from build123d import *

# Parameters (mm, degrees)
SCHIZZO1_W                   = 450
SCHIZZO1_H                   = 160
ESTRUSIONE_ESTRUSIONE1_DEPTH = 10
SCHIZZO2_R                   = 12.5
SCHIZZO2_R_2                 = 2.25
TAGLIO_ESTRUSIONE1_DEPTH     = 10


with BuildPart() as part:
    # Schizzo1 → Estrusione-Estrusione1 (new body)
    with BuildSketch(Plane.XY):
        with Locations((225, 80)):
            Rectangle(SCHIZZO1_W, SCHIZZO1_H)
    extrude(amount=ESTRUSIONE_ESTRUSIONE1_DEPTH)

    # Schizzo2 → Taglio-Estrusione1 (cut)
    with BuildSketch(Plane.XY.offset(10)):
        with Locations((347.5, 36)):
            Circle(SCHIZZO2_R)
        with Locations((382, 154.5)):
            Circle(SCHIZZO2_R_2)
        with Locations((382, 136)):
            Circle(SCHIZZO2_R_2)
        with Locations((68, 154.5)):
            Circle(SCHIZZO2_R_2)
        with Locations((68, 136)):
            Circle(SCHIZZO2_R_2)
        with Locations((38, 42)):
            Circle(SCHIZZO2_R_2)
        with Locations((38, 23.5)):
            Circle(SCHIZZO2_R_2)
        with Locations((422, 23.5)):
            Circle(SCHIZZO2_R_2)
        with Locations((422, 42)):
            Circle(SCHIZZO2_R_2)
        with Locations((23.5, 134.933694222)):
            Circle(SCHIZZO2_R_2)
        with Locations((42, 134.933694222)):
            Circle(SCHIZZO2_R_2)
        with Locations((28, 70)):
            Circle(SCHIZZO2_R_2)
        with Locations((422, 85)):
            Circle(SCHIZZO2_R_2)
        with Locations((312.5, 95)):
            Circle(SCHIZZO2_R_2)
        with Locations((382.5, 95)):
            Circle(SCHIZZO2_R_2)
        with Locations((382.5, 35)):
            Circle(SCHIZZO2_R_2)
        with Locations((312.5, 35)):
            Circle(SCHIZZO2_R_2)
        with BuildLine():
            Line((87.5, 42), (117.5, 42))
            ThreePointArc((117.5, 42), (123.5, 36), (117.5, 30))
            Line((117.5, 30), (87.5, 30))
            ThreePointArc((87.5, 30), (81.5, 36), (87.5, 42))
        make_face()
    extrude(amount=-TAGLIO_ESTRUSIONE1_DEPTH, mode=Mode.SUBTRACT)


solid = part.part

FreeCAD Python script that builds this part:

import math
import FreeCAD as App
import Part
import Sketcher
from FreeCAD import Vector
Q = App.Units.Quantity

doc = App.newDocument("Part")
body = doc.addObject("PartDesign::Body", "Body")

sketch1 = doc.addObject("Sketcher::SketchObject", "Sketch")
body.addObject(sketch1)
sketch1.AttachmentSupport = (doc.XY_Plane, [""])
sketch1.MapMode = "FlatFace"
sketch1.addGeometry([
    Part.LineSegment(Vector(0, 160, 0), Vector(0, 0, 0)),
    Part.LineSegment(Vector(0, 0, 0), Vector(450, 0, 0)),
    Part.LineSegment(Vector(450, 0, 0), Vector(450, 160, 0)),
    Part.LineSegment(Vector(450, 160, 0), Vector(0, 160, 0)),
], False)
sketch1.addConstraint([
    Sketcher.Constraint("Coincident", 0, 2, 1, 1),
    Sketcher.Constraint("Coincident", 1, 2, 2, 1),
    Sketcher.Constraint("Coincident", 2, 2, 3, 1),
    Sketcher.Constraint("Coincident", 3, 2, 0, 1),
    Sketcher.Constraint("Vertical", 0),
    Sketcher.Constraint("Horizontal", 1),
    Sketcher.Constraint("Vertical", 2),
    Sketcher.Constraint("Horizontal", 3),
    Sketcher.Constraint("Coincident", 0, 2, -1, 1),
    Sketcher.Constraint("DistanceX", 1, 1, 1, 2, Q("450 mm")),
    Sketcher.Constraint("DistanceY", 0, 2, 0, 1, Q("160 mm")),
])
pad1 = doc.addObject("PartDesign::Pad", "Pad")
body.addObject(pad1)
pad1.Profile = sketch1
pad1.Length = 10

sketch2 = doc.addObject("Sketcher::SketchObject", "Sketch001")
body.addObject(sketch2)
sketch2.AttachmentSupport = (doc.XY_Plane, [""])
sketch2.MapMode = "FlatFace"
sketch2.AttachmentOffset = App.Placement(Vector(0, 0, 10), App.Rotation())
sketch2.addGeometry([
    Part.Circle(Vector(347.5, 36, 0), Vector(0, 0, 1), 12.5),
    Part.Circle(Vector(382, 154.5, 0), Vector(0, 0, 1), 2.25),
    Part.Circle(Vector(382, 136, 0), Vector(0, 0, 1), 2.25),
    Part.Circle(Vector(68, 154.5, 0), Vector(0, 0, 1), 2.25),
    Part.Circle(Vector(68, 136, 0), Vector(0, 0, 1), 2.25),
    Part.Circle(Vector(38, 42, 0), Vector(0, 0, 1), 2.25),
    Part.Circle(Vector(38, 23.5, 0), Vector(0, 0, 1), 2.25),
    Part.Circle(Vector(422, 23.5, 0), Vector(0, 0, 1), 2.25),
    Part.Circle(Vector(422, 42, 0), Vector(0, 0, 1), 2.25),
    Part.Circle(Vector(23.5, 134.933694, 0), Vector(0, 0, 1), 2.25),
    Part.Circle(Vector(42, 134.933694, 0), Vector(0, 0, 1), 2.25),
    Part.Circle(Vector(28, 70, 0), Vector(0, 0, 1), 2.25),
    Part.Circle(Vector(422, 85, 0), Vector(0, 0, 1), 2.25),
    Part.Circle(Vector(312.5, 95, 0), Vector(0, 0, 1), 2.25),
    Part.Circle(Vector(382.5, 95, 0), Vector(0, 0, 1), 2.25),
    Part.Circle(Vector(382.5, 35, 0), Vector(0, 0, 1), 2.25),
    Part.Circle(Vector(312.5, 35, 0), Vector(0, 0, 1), 2.25),
    Part.LineSegment(Vector(117.5, 42, 0), Vector(87.5, 42, 0)),
    Part.ArcOfCircle(Part.Circle(Vector(87.5, 36, 0), Vector(0, 0, 1), 6), math.radians(90), math.radians(270)),
    Part.LineSegment(Vector(87.5, 30, 0), Vector(117.5, 30, 0)),
    Part.ArcOfCircle(Part.Circle(Vector(117.5, 36, 0), Vector(0, 0, 1), 6), math.radians(-90), math.radians(90)),
], False)
sketch2.addConstraint([
    Sketcher.Constraint("Tangent", 17, 2, 18, 1),
    Sketcher.Constraint("Tangent", 18, 2, 19, 1),
    Sketcher.Constraint("Tangent", 19, 2, 20, 1),
    Sketcher.Constraint("Tangent", 20, 2, 17, 1),
    Sketcher.Constraint("Horizontal", 17),
    Sketcher.Constraint("Horizontal", 19),
    Sketcher.Constraint("Equal", 1, 2),
    Sketcher.Constraint("Equal", 2, 3),
    Sketcher.Constraint("Equal", 3, 4),
    Sketcher.Constraint("Equal", 4, 5),
    Sketcher.Constraint("Equal", 5, 6),
    Sketcher.Constraint("Equal", 6, 7),
    Sketcher.Constraint("Equal", 7, 8),
    Sketcher.Constraint("Equal", 8, 9),
    Sketcher.Constraint("Equal", 9, 10),
    Sketcher.Constraint("Equal", 10, 11),
    Sketcher.Constraint("Equal", 11, 12),
    Sketcher.Constraint("Equal", 12, 13),
    Sketcher.Constraint("Equal", 13, 14),
    Sketcher.Constraint("Equal", 14, 15),
    Sketcher.Constraint("Equal", 15, 16),
    Sketcher.Constraint("Horizontal", 1, 3, 3, 3),
    Sketcher.Constraint("Horizontal", 2, 3, 4, 3),
    Sketcher.Constraint("Horizontal", 6, 3, 7, 3),
    Sketcher.Constraint("Horizontal", 5, 3, 8, 3),
    Sketcher.Constraint("Horizontal", 9, 3, 10, 3),
    Sketcher.Constraint("Horizontal", 13, 3, 14, 3),
    Sketcher.Constraint("Horizontal", 15, 3, 16, 3),
    Sketcher.Constraint("Horizontal", 0, 3, 18, 3),
    Sketcher.Constraint("Horizontal", 8, 3, 17, 2),
    Sketcher.Constraint("Vertical", 1, 3, 2, 3),
    Sketcher.Constraint("Vertical", 3, 3, 4, 3),
    Sketcher.Constraint("Vertical", 5, 3, 6, 3),
    Sketcher.Constraint("Vertical", 7, 3, 8, 3),
    Sketcher.Constraint("Vertical", 8, 3, 12, 3),
    Sketcher.Constraint("Vertical", 14, 3, 15, 3),
    Sketcher.Constraint("Vertical", 13, 3, 16, 3),
    Sketcher.Constraint("Diameter", 0, Q("25 mm")),
    Sketcher.Constraint("Radius", 18, Q("6 mm")),
    Sketcher.Constraint("Diameter", 1, Q("4.5 mm")),
    Sketcher.Constraint("DistanceX", 17, 2, 17, 1, Q("30 mm")),
    Sketcher.Constraint("DistanceY", -1, 1, 0, 3, Q("36 mm")),
    Sketcher.Constraint("DistanceX", -1, 1, 1, 3, Q("382 mm")),
    Sketcher.Constraint("DistanceY", -1, 1, 2, 3, Q("136 mm")),
    Sketcher.Constraint("DistanceX", -1, 1, 3, 3, Q("68 mm")),
    Sketcher.Constraint("DistanceX", -1, 1, 5, 3, Q("38 mm")),
    Sketcher.Constraint("DistanceX", -1, 1, 7, 3, Q("422 mm")),
    Sketcher.Constraint("DistanceX", -1, 1, 10, 3, Q("42 mm")),
    Sketcher.Constraint("DistanceX", -1, 1, 11, 3, Q("28 mm")),
    Sketcher.Constraint("DistanceY", -1, 1, 11, 3, Q("70 mm")),
    Sketcher.Constraint("DistanceY", -1, 1, 12, 3, Q("85 mm")),
    Sketcher.Constraint("DistanceY", -1, 1, 13, 3, Q("95 mm")),
    Sketcher.Constraint("DistanceY", -1, 1, 15, 3, Q("35 mm")),
    Sketcher.Constraint("DistanceY", 6, 3, 3, 3, Q("131 mm")),
    Sketcher.Constraint("DistanceX", 9, 3, 0, 3, Q("324 mm")),
    Sketcher.Constraint("DistanceX", 13, 3, 0, 3, Q("35 mm")),
    Sketcher.Constraint("DistanceX", 0, 3, 14, 3, Q("35 mm")),
    Sketcher.Constraint("DistanceX", -1, 1, 0, 3, Q("347.5 mm")),
    Sketcher.Constraint("DistanceY", -1, 1, 1, 3, Q("154.5 mm")),
    Sketcher.Constraint("DistanceX", -1, 1, 18, 3, Q("87.5 mm")),
    Sketcher.Constraint("DistanceY", -1, 1, 9, 3, Q("134.933694 mm")),
])
pocket1 = doc.addObject("PartDesign::Pocket", "Pocket")
body.addObject(pocket1)
pocket1.Profile = sketch2
pocket1.Length = 10

doc.recompute()
